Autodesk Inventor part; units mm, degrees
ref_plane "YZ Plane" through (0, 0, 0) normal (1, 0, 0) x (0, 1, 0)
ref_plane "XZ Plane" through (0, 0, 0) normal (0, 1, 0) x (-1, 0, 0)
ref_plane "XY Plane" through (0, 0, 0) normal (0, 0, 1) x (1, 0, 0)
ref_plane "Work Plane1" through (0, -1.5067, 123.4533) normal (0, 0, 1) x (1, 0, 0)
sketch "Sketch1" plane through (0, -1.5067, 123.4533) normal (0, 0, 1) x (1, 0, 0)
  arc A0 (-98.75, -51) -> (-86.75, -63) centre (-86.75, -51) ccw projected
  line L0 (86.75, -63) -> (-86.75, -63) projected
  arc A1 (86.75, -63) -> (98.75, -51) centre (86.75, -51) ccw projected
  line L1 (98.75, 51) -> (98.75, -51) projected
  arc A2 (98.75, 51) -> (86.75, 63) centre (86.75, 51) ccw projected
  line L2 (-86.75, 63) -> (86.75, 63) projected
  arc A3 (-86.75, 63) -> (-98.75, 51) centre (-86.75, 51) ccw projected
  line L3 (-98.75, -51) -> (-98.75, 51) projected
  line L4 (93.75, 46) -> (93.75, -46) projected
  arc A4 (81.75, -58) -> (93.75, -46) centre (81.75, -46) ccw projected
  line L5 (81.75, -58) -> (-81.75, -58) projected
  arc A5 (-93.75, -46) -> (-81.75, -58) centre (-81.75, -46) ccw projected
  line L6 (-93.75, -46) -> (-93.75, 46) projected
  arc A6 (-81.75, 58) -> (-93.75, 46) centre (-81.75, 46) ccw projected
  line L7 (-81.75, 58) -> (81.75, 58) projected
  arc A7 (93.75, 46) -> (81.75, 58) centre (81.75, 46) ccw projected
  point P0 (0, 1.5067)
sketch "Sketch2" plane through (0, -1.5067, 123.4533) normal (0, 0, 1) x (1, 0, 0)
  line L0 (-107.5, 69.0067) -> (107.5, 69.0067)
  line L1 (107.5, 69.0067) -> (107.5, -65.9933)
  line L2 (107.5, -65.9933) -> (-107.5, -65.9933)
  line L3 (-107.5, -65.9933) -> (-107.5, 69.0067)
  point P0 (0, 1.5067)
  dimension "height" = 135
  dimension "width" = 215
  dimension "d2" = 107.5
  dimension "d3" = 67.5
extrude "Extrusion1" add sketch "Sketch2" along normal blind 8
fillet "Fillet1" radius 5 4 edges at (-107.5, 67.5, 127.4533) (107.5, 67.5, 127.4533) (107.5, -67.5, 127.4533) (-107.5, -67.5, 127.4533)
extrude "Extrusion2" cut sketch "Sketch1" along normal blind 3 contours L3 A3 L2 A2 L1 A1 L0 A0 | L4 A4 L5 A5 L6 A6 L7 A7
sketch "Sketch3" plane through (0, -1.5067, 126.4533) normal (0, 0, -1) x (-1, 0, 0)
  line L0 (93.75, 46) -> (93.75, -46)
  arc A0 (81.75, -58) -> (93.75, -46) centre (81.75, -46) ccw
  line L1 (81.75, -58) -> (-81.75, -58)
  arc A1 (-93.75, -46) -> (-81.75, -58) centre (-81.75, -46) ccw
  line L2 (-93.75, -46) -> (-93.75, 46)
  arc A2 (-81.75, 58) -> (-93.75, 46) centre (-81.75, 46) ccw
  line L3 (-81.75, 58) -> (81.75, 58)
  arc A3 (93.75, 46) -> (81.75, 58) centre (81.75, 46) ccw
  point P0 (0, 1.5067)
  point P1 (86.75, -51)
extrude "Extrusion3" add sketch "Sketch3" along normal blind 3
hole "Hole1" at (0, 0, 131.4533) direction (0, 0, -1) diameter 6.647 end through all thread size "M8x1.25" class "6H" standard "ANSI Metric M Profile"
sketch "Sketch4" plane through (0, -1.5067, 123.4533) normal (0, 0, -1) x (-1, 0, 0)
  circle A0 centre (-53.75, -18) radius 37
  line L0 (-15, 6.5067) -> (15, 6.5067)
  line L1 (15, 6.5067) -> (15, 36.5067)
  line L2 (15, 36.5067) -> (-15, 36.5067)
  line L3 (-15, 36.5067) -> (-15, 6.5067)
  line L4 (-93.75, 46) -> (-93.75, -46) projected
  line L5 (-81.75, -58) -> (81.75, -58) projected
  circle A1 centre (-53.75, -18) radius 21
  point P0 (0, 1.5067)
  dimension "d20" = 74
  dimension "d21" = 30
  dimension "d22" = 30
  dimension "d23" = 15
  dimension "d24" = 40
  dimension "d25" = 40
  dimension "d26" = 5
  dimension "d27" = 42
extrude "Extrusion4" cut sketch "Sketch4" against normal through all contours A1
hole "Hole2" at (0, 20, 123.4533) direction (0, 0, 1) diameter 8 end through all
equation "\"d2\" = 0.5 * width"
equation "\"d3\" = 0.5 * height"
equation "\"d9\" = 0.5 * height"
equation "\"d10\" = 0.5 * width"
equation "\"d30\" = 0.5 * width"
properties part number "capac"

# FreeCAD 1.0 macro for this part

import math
import FreeCAD as App
import Part
import Sketcher
Q = App.Units.Quantity


def edges_at(feature, points):
    """Names of the edges that pass closest to the given points."""
    edges = feature.Shape.Edges
    near = lambda p: min(range(len(edges)), key=lambda i: edges[i].distToShape(Part.Vertex(*p))[0])
    return sorted({f"Edge{near(p) + 1}" for p in points})

doc = App.newDocument("Part")
body = doc.addObject("PartDesign::Body", "Body")

sketch1 = body.newObject("Sketcher::SketchObject", "Sketch")
sketch1.AttachmentSupport = (doc.getObject("XY_Plane"), [""])
sketch1.MapMode = "FlatFace"
sketch1.AttachmentOffset = App.Placement(App.Vector(0, 0, 123.4533), App.Rotation())
sketch1.addGeometry(Part.LineSegment(App.Vector(108, 68, 0), App.Vector(-108, 68, 0)), False)
sketch1.addGeometry(Part.LineSegment(App.Vector(-108, 68, 0), App.Vector(-108, -68, 0)), False)
sketch1.addGeometry(Part.LineSegment(App.Vector(-108, -68, 0), App.Vector(108, -68, 0)), False)
sketch1.addGeometry(Part.LineSegment(App.Vector(108, -68, 0), App.Vector(108, 68, 0)), False)
sketch1.addConstraint(Sketcher.Constraint("Coincident", 0, 2, 1, 1))
sketch1.addConstraint(Sketcher.Constraint("Coincident", 1, 2, 2, 1))
sketch1.addConstraint(Sketcher.Constraint("Coincident", 2, 2, 3, 1))
sketch1.addConstraint(Sketcher.Constraint("Coincident", 3, 2, 0, 1))
sketch1.addConstraint(Sketcher.Constraint("Horizontal", 0))
sketch1.addConstraint(Sketcher.Constraint("Vertical", 1))
sketch1.addConstraint(Sketcher.Constraint("Horizontal", 2))
sketch1.addConstraint(Sketcher.Constraint("Vertical", 3))
sketch1.addConstraint(Sketcher.Constraint("Symmetric", 0, 2, 2, 2, -1, 1))
sketch1.addConstraint(Sketcher.Constraint("DistanceX", 0, 2, 0, 1, Q("215 mm")))
sketch1.addConstraint(Sketcher.Constraint("DistanceY", 1, 2, 1, 1, Q("135 mm")))
pad1 = body.newObject("PartDesign::Pad", "Pad")
pad1.Profile = sketch1
pad1.Length = 8
doc.recompute()

fillet = body.newObject("PartDesign::Fillet", "Fillet")
fillet.Base = (pad1, edges_at(pad1, [
    (-107.5, 67.5, 127.453),
    (107.5, 67.5, 127.453),
    (107.5, -67.5, 127.453),
    (-107.5, -67.5, 127.453),
]))
fillet.Radius = 5

sketch2 = body.newObject("Sketcher::SketchObject", "Sketch001")
sketch2.AttachmentSupport = (doc.getObject("XY_Plane"), [""])
sketch2.MapMode = "FlatFace"
sketch2.AttachmentOffset = App.Placement(App.Vector(0, 0, 123.4533), App.Rotation())
sketch2.addGeometry(Part.LineSegment(App.Vector(-99, 49, 0), App.Vector(-99, -53, 0)), False)
sketch2.addGeometry(Part.ArcOfCircle(Part.Circle(App.Vector(-87, -53, 0), App.Vector(0, 0, 1), 12), math.radians(180), math.radians(270)), False)
sketch2.addGeometry(Part.LineSegment(App.Vector(-87, -65, 0), App.Vector(87, -65, 0)), False)
sketch2.addGeometry(Part.ArcOfCircle(Part.Circle(App.Vector(87, -53, 0), App.Vector(0, 0, 1), 12), math.radians(-90), math.radians(0)), False)
sketch2.addGeometry(Part.LineSegment(App.Vector(99, -53, 0), App.Vector(99, 49, 0)), False)
sketch2.addGeometry(Part.ArcOfCircle(Part.Circle(App.Vector(87, 49, 0), App.Vector(0, 0, 1), 12), math.radians(0), math.radians(90)), False)
sketch2.addGeometry(Part.LineSegment(App.Vector(87, 61, 0), App.Vector(-87, 61, 0)), False)
sketch2.addGeometry(Part.ArcOfCircle(Part.Circle(App.Vector(-87, 49, 0), App.Vector(0, 0, 1), 12), math.radians(90), math.radians(180)), False)
sketch2.addConstraint(Sketcher.Constraint("Tangent", 0, 2, 1, 1))
sketch2.addConstraint(Sketcher.Constraint("Tangent", 1, 2, 2, 1))
sketch2.addConstraint(Sketcher.Constraint("Tangent", 2, 2, 3, 1))
sketch2.addConstraint(Sketcher.Constraint("Tangent", 3, 2, 4, 1))
sketch2.addConstraint(Sketcher.Constraint("Tangent", 4, 2, 5, 1))
sketch2.addConstraint(Sketcher.Constraint("Tangent", 5, 2, 6, 1))
sketch2.addConstraint(Sketcher.Constraint("Tangent", 6, 2, 7, 1))
sketch2.addConstraint(Sketcher.Constraint("Tangent", 7, 2, 0, 1))
sketch2.addConstraint(Sketcher.Constraint("Vertical", 0))
sketch2.addConstraint(Sketcher.Constraint("Horizontal", 2))
sketch2.addConstraint(Sketcher.Constraint("Vertical", 4))
sketch2.addConstraint(Sketcher.Constraint("Horizontal", 6))
sketch2.addConstraint(Sketcher.Constraint("Equal", 1, 3))
sketch2.addConstraint(Sketcher.Constraint("Equal", 3, 5))
sketch2.addConstraint(Sketcher.Constraint("Equal", 5, 7))
sketch2.addConstraint(Sketcher.Constraint("Radius", 1, Q("12 mm")))
sketch2.addConstraint(Sketcher.Constraint("DistanceY", 0, 2, 0, 1, Q("102 mm")))
sketch2.addConstraint(Sketcher.Constraint("DistanceX", 2, 1, 2, 2, Q("173.5 mm")))
sketch2.addConstraint(Sketcher.Constraint("DistanceX", 1, 3, -1, 1, Q("86.75 mm")))
sketch2.addConstraint(Sketcher.Constraint("DistanceY", 1, 3, -1, 1, Q("52.5067 mm")))
pocket1 = body.newObject("PartDesign::Pocket", "Pocket")
pocket1.Profile = sketch2
pocket1.Length = 3
pocket1.Reversed = True

sketch3 = body.newObject("Sketcher::SketchObject", "Sketch002")
sketch3.AttachmentSupport = (doc.getObject("XY_Plane"), [""])
sketch3.MapMode = "FlatFace"
sketch3.AttachmentOffset = App.Placement(App.Vector(0, 0, 126.4533), App.Rotation())
sketch3.addGeometry(Part.LineSegment(App.Vector(-94, -48, 0), App.Vector(-94, 44, 0)), False)
sketch3.addGeometry(Part.ArcOfCircle(Part.Circle(App.Vector(-82, 44, 0), App.Vector(0, 0, 1), 12), math.radians(90), math.radians(180)), False)
sketch3.addGeometry(Part.LineSegment(App.Vector(-82, 56, 0), App.Vector(82, 56, 0)), False)
sketch3.addGeometry(Part.ArcOfCircle(Part.Circle(App.Vector(82, 44, 0), App.Vector(0, 0, 1), 12), math.radians(0), math.radians(90)), False)
sketch3.addGeometry(Part.LineSegment(App.Vector(94, 44, 0), App.Vector(94, -48, 0)), False)
sketch3.addGeometry(Part.ArcOfCircle(Part.Circle(App.Vector(82, -48, 0), App.Vector(0, 0, 1), 12), math.radians(-90), math.radians(0)), False)
sketch3.addGeometry(Part.LineSegment(App.Vector(82, -60, 0), App.Vector(-82, -60, 0)), False)
sketch3.addGeometry(Part.ArcOfCircle(Part.Circle(App.Vector(-82, -48, 0), App.Vector(0, 0, 1), 12), math.radians(180), math.radians(270)), False)
sketch3.addConstraint(Sketcher.Constraint("Tangent", 0, 2, 1, 2))
sketch3.addConstraint(Sketcher.Constraint("Tangent", 1, 1, 2, 1))
sketch3.addConstraint(Sketcher.Constraint("Tangent", 2, 2, 3, 2))
sketch3.addConstraint(Sketcher.Constraint("Tangent", 3, 1, 4, 1))
sketch3.addConstraint(Sketcher.Constraint("Tangent", 4, 2, 5, 2))
sketch3.addConstraint(Sketcher.Constraint("Tangent", 5, 1, 6, 1))
sketch3.addConstraint(Sketcher.Constraint("Tangent", 6, 2, 7, 2))
sketch3.addConstraint(Sketcher.Constraint("Tangent", 7, 1, 0, 1))
sketch3.addConstraint(Sketcher.Constraint("Vertical", 0))
sketch3.addConstraint(Sketcher.Constraint("Horizontal", 2))
sketch3.addConstraint(Sketcher.Constraint("Vertical", 4))
sketch3.addConstraint(Sketcher.Constraint("Horizontal", 6))
sketch3.addConstraint(Sketcher.Constraint("Equal", 1, 3))
sketch3.addConstraint(Sketcher.Constraint("Equal", 3, 5))
sketch3.addConstraint(Sketcher.Constraint("Equal", 5, 7))
sketch3.addConstraint(Sketcher.Constraint("Radius", 1, Q("12 mm")))
sketch3.addConstraint(Sketcher.Constraint("DistanceY", 0, 1, 0, 2, Q("92 mm")))
sketch3.addConstraint(Sketcher.Constraint("DistanceX", 2, 1, 2, 2, Q("163.5 mm")))
sketch3.addConstraint(Sketcher.Constraint("DistanceX", 1, 3, -1, 1, Q("81.75 mm")))
sketch3.addConstraint(Sketcher.Constraint("DistanceY", -1, 1, 1, 3, Q("44.4933 mm")))
pad2 = body.newObject("PartDesign::Pad", "Pad001")
pad2.Profile = sketch3
pad2.Length = 3
pad2.Reversed = True

sketch4 = body.newObject("Sketcher::SketchObject", "Sketch003")
sketch4.AttachmentSupport = (doc.getObject("XY_Plane"), [""])
sketch4.MapMode = "FlatFace"
sketch4.AttachmentOffset = App.Placement(App.Vector(0, 0, 131.4533), App.Rotation())
sketch4.addGeometry(Part.Circle(App.Vector(0, 0, 0), App.Vector(0, 0, 1), 3.3), False)
sketch4.addConstraint(Sketcher.Constraint("Coincident", 0, 3, -1, 1))
sketch4.addConstraint(Sketcher.Constraint("Diameter", 0, Q("6.647 mm")))
doc.recompute()
hole = body.newObject("PartDesign::Hole", "Hole")
hole.Profile = sketch4
hole.ThreadType = "None"
hole.Diameter = 6.647
hole.DepthType = "ThroughAll"

sketch5 = body.newObject("Sketcher::SketchObject", "Sketch004")
sketch5.AttachmentSupport = (doc.getObject("XY_Plane"), [""])
sketch5.MapMode = "FlatFace"
sketch5.AttachmentOffset = App.Placement(App.Vector(0, 0, 123.4533), App.Rotation())
sketch5.addGeometry(Part.Circle(App.Vector(54, -20, 0), App.Vector(0, 0, 1), 21), False)
sketch5.addConstraint(Sketcher.Constraint("Diameter", 0, Q("42 mm")))
sketch5.addConstraint(Sketcher.Constraint("DistanceX", -1, 1, 0, 3, Q("53.75 mm")))
sketch5.addConstraint(Sketcher.Constraint("DistanceY", 0, 3, -1, 1, Q("19.5067 mm")))
pocket2 = body.newObject("PartDesign::Pocket", "Pocket001")
pocket2.Profile = sketch5
pocket2.Type = "ThroughAll"
pocket2.Reversed = True

sketch6 = body.newObject("Sketcher::SketchObject", "Sketch005")
sketch6.AttachmentSupport = (doc.getObject("XY_Plane"), [""])
sketch6.MapMode = "FlatFace"
sketch6.AttachmentOffset = App.Placement(App.Vector(0, 0, 123.4533), App.Rotation())
sketch6.addGeometry(Part.Circle(App.Vector(0, 20, 0), App.Vector(0, 0, 1), 4), False)
sketch6.addConstraint(Sketcher.Constraint("PointOnObject", 0, 3, -2))
sketch6.addConstraint(Sketcher.Constraint("Diameter", 0, Q("8 mm")))
sketch6.addConstraint(Sketcher.Constraint("DistanceY", -1, 1, 0, 3, Q("20 mm")))
doc.recompute()
hole2 = body.newObject("PartDesign::Hole", "Hole001")
hole2.Profile = sketch6
hole2.ThreadType = "None"
hole2.Diameter = 8
hole2.DepthType = "ThroughAll"
hole2.Reversed = True

doc.recompute()
